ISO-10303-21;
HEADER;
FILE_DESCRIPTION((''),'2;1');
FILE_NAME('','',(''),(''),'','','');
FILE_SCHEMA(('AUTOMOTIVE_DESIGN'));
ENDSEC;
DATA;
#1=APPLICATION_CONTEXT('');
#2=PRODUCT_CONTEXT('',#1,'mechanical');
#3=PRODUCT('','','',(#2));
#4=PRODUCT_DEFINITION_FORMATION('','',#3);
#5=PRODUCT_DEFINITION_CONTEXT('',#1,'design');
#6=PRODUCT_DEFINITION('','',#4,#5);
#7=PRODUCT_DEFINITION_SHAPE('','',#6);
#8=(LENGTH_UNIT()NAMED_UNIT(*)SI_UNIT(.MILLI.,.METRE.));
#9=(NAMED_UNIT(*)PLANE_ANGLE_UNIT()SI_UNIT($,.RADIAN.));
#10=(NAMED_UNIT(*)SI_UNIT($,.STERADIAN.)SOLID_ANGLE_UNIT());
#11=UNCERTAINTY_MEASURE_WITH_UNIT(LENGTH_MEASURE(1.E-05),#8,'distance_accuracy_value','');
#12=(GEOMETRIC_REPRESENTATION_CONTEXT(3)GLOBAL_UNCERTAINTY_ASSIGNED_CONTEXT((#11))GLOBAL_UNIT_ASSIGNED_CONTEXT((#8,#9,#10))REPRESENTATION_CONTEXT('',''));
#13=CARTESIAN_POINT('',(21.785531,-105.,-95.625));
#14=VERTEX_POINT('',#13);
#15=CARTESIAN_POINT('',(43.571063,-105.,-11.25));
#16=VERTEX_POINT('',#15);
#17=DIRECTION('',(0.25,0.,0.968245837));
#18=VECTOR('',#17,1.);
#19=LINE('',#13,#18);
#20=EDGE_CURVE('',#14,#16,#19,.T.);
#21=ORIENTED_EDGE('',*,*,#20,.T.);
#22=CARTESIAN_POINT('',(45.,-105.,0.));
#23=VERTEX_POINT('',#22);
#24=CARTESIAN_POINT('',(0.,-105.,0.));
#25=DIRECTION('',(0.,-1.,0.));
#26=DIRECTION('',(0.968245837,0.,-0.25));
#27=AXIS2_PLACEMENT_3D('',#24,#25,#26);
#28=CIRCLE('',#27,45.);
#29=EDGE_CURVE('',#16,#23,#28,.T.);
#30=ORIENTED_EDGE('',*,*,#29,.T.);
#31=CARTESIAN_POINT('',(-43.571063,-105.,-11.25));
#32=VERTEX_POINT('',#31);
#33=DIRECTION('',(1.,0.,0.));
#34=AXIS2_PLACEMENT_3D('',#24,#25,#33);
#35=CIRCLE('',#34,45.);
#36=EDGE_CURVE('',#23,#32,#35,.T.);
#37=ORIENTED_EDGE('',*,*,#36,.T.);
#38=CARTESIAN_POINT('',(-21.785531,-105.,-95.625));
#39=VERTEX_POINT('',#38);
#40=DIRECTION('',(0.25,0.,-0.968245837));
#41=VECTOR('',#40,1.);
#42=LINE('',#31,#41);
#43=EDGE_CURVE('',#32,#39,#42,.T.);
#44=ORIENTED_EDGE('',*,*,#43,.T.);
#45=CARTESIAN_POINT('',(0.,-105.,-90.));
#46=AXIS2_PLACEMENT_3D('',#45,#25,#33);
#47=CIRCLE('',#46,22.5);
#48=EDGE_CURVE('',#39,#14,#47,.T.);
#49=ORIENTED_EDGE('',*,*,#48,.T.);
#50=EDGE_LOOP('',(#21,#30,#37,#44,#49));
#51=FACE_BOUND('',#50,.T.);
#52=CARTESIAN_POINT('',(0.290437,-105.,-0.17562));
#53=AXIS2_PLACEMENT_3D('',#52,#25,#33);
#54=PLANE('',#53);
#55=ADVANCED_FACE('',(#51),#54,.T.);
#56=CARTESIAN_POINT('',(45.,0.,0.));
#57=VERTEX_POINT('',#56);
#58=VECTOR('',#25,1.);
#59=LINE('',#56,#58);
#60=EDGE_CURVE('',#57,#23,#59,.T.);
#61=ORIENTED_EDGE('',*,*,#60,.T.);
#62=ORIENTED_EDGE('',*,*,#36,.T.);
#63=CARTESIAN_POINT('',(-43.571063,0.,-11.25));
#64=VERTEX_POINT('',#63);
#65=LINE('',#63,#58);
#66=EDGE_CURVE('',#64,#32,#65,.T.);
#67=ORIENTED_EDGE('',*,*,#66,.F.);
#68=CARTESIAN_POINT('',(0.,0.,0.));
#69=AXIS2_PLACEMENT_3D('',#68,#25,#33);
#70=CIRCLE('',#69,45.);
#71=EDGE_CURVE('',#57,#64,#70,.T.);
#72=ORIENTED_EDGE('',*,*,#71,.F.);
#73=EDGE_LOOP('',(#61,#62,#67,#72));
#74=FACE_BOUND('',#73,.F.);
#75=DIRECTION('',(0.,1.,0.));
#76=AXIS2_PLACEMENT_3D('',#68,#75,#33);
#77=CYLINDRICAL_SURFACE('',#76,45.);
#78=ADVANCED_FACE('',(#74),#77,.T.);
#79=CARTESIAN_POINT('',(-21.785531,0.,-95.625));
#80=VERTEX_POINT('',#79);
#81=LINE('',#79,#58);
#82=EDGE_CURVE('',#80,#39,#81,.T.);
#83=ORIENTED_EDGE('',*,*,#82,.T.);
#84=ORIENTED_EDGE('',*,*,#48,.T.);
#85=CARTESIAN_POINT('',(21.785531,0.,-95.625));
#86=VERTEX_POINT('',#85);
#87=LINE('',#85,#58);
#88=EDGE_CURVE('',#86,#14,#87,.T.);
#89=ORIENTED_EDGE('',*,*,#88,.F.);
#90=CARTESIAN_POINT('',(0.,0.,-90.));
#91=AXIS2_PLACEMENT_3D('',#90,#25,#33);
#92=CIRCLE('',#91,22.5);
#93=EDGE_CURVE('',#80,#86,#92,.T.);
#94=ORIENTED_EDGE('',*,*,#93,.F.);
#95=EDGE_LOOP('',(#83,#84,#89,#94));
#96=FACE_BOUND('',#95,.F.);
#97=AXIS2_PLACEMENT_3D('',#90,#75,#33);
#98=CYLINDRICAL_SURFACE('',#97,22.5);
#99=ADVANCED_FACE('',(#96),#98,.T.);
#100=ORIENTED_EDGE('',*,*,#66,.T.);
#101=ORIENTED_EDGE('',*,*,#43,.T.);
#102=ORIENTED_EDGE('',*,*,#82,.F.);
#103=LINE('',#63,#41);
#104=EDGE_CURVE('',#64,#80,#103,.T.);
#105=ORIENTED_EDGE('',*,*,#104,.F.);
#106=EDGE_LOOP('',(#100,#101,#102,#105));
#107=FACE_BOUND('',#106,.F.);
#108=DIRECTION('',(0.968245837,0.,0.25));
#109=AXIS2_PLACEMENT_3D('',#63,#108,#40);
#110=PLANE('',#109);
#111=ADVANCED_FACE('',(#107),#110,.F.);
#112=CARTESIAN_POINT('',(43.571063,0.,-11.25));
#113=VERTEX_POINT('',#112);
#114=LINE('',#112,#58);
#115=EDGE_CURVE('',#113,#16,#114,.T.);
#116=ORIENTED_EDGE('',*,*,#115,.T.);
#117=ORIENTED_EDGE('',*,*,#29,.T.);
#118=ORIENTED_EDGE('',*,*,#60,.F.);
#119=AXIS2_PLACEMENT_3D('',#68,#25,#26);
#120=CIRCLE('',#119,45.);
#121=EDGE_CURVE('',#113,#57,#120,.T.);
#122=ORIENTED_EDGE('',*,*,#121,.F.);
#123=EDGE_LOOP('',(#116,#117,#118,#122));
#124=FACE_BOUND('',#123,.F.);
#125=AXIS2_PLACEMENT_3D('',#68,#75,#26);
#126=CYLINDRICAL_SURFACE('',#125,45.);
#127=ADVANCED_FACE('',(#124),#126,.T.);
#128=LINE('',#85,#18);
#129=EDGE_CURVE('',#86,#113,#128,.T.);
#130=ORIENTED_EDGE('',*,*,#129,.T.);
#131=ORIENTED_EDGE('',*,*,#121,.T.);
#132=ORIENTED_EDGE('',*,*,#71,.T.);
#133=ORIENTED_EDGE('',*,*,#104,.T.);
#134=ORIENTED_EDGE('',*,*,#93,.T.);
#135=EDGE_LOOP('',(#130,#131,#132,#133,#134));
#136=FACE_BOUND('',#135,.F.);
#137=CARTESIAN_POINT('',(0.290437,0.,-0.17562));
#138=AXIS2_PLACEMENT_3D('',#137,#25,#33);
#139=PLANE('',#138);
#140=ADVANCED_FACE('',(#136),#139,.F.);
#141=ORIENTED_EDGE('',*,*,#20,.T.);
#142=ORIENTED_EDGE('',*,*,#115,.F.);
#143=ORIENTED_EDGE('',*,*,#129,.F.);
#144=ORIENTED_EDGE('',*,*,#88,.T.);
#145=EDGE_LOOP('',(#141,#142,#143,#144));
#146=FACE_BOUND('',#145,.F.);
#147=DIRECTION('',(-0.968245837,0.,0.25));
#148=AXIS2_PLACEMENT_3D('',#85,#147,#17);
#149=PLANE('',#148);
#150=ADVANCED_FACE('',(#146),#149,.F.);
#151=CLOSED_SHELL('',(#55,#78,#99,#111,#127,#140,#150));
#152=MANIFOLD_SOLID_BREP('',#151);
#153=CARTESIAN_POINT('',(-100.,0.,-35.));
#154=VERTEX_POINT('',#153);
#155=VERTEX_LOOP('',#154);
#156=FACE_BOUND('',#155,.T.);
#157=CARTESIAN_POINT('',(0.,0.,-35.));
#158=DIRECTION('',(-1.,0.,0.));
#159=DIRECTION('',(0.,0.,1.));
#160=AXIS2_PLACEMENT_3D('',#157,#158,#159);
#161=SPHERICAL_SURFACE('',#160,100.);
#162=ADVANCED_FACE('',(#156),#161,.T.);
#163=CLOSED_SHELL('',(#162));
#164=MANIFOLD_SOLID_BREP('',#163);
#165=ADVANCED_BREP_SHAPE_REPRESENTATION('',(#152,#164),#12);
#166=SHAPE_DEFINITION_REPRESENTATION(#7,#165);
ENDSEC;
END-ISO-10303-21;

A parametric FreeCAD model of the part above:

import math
import FreeCAD as App
import Part
import Sketcher

doc = App.newDocument("Part")
body = doc.addObject("PartDesign::Body", "Body")

# Sketch on XZ plane
sketch1 = body.newObject("Sketcher::SketchObject", "Sketch")
sketch1.AttachmentSupport = (doc.getObject("XZ_Plane"), [""])
sketch1.MapMode = "FlatFace"
sketch1.addGeometry([
    Part.ArcOfCircle(Part.Circle(App.Vector(0, -35, 0), App.Vector(0, 0, 1), 100), math.radians(0), math.radians(180)),
    Part.LineSegment(App.Vector(-100, -35, 0), App.Vector(100, -35, 0)),
], False)
sketch1.addGeometry(Part.LineSegment(App.Vector(100, -35, 0), App.Vector(-100, -35, 0)), True)  # axis
sketch1.addConstraint([
    Sketcher.Constraint("Coincident", 0, 1, 1, 2),
    Sketcher.Constraint("Coincident", 1, 1, 0, 2),
    Sketcher.Constraint("Horizontal", 1),
    Sketcher.Constraint("Horizontal", 2),
    Sketcher.Constraint("Coincident", 2, 1, 0, 1),
    Sketcher.Constraint("PointOnObject", 0, 3, -2),
    Sketcher.Constraint("Equal", 1, 2),
    Sketcher.Constraint("Radius", 0, 100.0),
    Sketcher.Constraint("DistanceY", 0, 3, -1, 1, 35.0),
    Sketcher.Constraint("DistanceY", 0, 1, -1, 1, 35.0),
])
revolution = body.newObject("PartDesign::Revolution", "Revolution")
revolution.Profile = sketch1
revolution.ReferenceAxis = (sketch1, ["Axis0"])
revolution.Angle = 360
body2 = doc.addObject("PartDesign::Body", "Body001")

# Sketch on XZ plane
sketch2 = body2.newObject("Sketcher::SketchObject", "Sketch001")
sketch2.AttachmentSupport = (doc.getObject("XZ_Plane001"), [""])
sketch2.MapMode = "FlatFace"
sketch2.addGeometry([
    Part.ArcOfCircle(Part.Circle(App.Vector(0, 0, 0), App.Vector(0, 0, 1), 45), math.radians(-14.477512), math.radians(0)),  # 0
    Part.ArcOfCircle(Part.Circle(App.Vector(0, 0, 0), App.Vector(0, 0, 1), 45), math.radians(0), math.radians(194.477512)),  # 1
    Part.LineSegment(App.Vector(-43.571063, -11.25, 0), App.Vector(-21.785531, -95.625, 0)),  # 2
    Part.ArcOfCircle(Part.Circle(App.Vector(0, -90, 0), App.Vector(0, 0, 1), 22.5), math.radians(-165.522488), math.radians(-14.477512)),  # 3
    Part.LineSegment(App.Vector(21.785531, -95.625, 0), App.Vector(43.571063, -11.25, 0)),  # 4
], False)
sketch2.addConstraint([
    Sketcher.Constraint("Tangent", 0, 2, 1, 1),
    Sketcher.Constraint("Tangent", 1, 2, 2, 1),
    Sketcher.Constraint("Tangent", 2, 2, 3, 1),
    Sketcher.Constraint("Tangent", 3, 2, 4, 1),
    Sketcher.Constraint("Tangent", 4, 2, 0, 1),
    Sketcher.Constraint("Coincident", 0, 3, -1, 1),
    Sketcher.Constraint("Equal", 0, 1),
    Sketcher.Constraint("PointOnObject", 3, 3, -2),
    Sketcher.Constraint("PointOnObject", 0, 2, -1),
    Sketcher.Constraint("Radius", 0, 45.0),
    Sketcher.Constraint("Radius", 3, 22.5),
    Sketcher.Constraint("DistanceY", 3, 3, -1, 1, 90.0),
])
pad1 = body2.newObject("PartDesign::Pad", "Pad")
pad1.Profile = sketch2
pad1.Length = 105

doc.recompute()
